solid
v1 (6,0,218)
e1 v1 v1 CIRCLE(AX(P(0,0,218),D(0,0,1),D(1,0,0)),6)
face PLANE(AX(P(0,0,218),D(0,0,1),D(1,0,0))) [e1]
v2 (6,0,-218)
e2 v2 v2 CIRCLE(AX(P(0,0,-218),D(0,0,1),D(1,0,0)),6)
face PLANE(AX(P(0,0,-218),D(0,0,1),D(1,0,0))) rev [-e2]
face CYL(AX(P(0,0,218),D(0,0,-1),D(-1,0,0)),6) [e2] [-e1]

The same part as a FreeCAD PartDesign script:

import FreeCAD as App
import Part
import Sketcher

doc = App.newDocument("Part")
body = doc.addObject("PartDesign::Body", "Body")

sketch1 = body.newObject("Sketcher::SketchObject", "Sketch")
sketch1.AttachmentSupport = (doc.getObject("XY_Plane"), [""])
sketch1.MapMode = "FlatFace"
sketch1.addGeometry(Part.Circle(App.Vector(0, 0, 0), App.Vector(0, 0, 1), 6), False)
sketch1.addConstraint([
    Sketcher.Constraint("Coincident", 0, 3, -1, 1),
    Sketcher.Constraint("Diameter", 0, 12.0),
])
pad1 = body.newObject("PartDesign::Pad", "Pad")
pad1.Profile = sketch1
pad1.Length = 436
pad1.Midplane = True

doc.recompute()
